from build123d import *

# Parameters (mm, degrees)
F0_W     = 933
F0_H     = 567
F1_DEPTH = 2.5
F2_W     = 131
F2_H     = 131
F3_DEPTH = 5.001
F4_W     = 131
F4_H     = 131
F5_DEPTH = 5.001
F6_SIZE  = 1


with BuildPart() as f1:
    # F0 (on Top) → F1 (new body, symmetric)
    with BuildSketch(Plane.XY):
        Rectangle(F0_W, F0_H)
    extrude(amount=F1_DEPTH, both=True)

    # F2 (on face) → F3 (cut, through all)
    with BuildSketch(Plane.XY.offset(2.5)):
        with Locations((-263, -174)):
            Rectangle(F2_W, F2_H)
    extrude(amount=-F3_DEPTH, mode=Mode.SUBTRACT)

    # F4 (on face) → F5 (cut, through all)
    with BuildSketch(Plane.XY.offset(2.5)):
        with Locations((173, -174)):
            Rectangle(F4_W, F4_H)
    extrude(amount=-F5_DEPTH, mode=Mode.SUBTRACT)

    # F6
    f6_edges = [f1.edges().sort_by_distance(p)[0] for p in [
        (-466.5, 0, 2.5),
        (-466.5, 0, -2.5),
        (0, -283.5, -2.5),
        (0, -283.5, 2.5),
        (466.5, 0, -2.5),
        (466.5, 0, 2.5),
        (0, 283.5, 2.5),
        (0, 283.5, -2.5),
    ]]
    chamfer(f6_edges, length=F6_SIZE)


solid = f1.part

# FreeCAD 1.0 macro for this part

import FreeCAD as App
import Part
import Sketcher
from FreeCAD import Vector
Q = App.Units.Quantity


def edges_at(feature, points):
    """Names of the edges that pass closest to the given points."""
    edges = feature.Shape.Edges
    near = lambda p: min(range(len(edges)), key=lambda i: edges[i].distToShape(Part.Vertex(*p))[0])
    return sorted({f"Edge{near(p) + 1}" for p in points})

doc = App.newDocument("Part")
body = doc.addObject("PartDesign::Body", "Body")

# Sketch on XY plane
sketch1 = doc.addObject("Sketcher::SketchObject", "Sketch")
body.addObject(sketch1)
sketch1.AttachmentSupport = (doc.XY_Plane, [""])
sketch1.MapMode = "FlatFace"
sketch1.addGeometry([
    Part.LineSegment(Vector(-466.5, 283.5, 0), Vector(-466.5, -283.5, 0)),
    Part.LineSegment(Vector(-466.5, -283.5, 0), Vector(466.5, -283.5, 0)),
    Part.LineSegment(Vector(466.5, -283.5, 0), Vector(466.5, 283.5, 0)),
    Part.LineSegment(Vector(466.5, 283.5, 0), Vector(-466.5, 283.5, 0)),
], False)
sketch1.addConstraint([
    Sketcher.Constraint("Coincident", 0, 2, 1, 1),
    Sketcher.Constraint("Coincident", 1, 2, 2, 1),
    Sketcher.Constraint("Coincident", 2, 2, 3, 1),
    Sketcher.Constraint("Coincident", 3, 2, 0, 1),
    Sketcher.Constraint("Vertical", 0),
    Sketcher.Constraint("Horizontal", 1),
    Sketcher.Constraint("Vertical", 2),
    Sketcher.Constraint("Horizontal", 3),
    Sketcher.Constraint("Symmetric", 0, 2, 2, 2, -1, 1),
    Sketcher.Constraint("DistanceX", 1, 1, 1, 2, Q("933 mm")),
    Sketcher.Constraint("DistanceY", 0, 2, 0, 1, Q("567 mm")),
])
pad1 = doc.addObject("PartDesign::Pad", "Pad")
body.addObject(pad1)
pad1.Profile = sketch1
pad1.Length = 5
pad1.Midplane = True

# Sketch on XY plane
sketch2 = doc.addObject("Sketcher::SketchObject", "Sketch001")
body.addObject(sketch2)
sketch2.AttachmentSupport = (doc.XY_Plane, [""])
sketch2.MapMode = "FlatFace"
sketch2.AttachmentOffset = App.Placement(Vector(0, 0, 2.5), App.Rotation())
sketch2.addGeometry([
    Part.LineSegment(Vector(-328.5, -108.5, 0), Vector(-328.5, -239.5, 0)),
    Part.LineSegment(Vector(-328.5, -239.5, 0), Vector(-197.5, -239.5, 0)),
    Part.LineSegment(Vector(-197.5, -239.5, 0), Vector(-197.5, -108.5, 0)),
    Part.LineSegment(Vector(-197.5, -108.5, 0), Vector(-328.5, -108.5, 0)),
], False)
sketch2.addConstraint([
    Sketcher.Constraint("Coincident", 0, 2, 1, 1),
    Sketcher.Constraint("Coincident", 1, 2, 2, 1),
    Sketcher.Constraint("Coincident", 2, 2, 3, 1),
    Sketcher.Constraint("Coincident", 3, 2, 0, 1),
    Sketcher.Constraint("Vertical", 0),
    Sketcher.Constraint("Horizontal", 1),
    Sketcher.Constraint("Vertical", 2),
    Sketcher.Constraint("Horizontal", 3),
    Sketcher.Constraint("Equal", 3, 0),
    Sketcher.Constraint("DistanceX", 1, 1, 1, 2, Q("131 mm")),
    Sketcher.Constraint("DistanceX", 0, 2, -1, 1, Q("328.5 mm")),
    Sketcher.Constraint("DistanceY", 0, 2, -1, 1, Q("239.5 mm")),
])
pocket1 = doc.addObject("PartDesign::Pocket", "Pocket")
body.addObject(pocket1)
pocket1.Profile = sketch2
pocket1.Type = "ThroughAll"

# Sketch on XY plane
sketch3 = doc.addObject("Sketcher::SketchObject", "Sketch002")
body.addObject(sketch3)
sketch3.AttachmentSupport = (doc.XY_Plane, [""])
sketch3.MapMode = "FlatFace"
sketch3.AttachmentOffset = App.Placement(Vector(0, 0, 2.5), App.Rotation())
sketch3.addGeometry([
    Part.LineSegment(Vector(107.5, -108.5, 0), Vector(107.5, -239.5, 0)),
    Part.LineSegment(Vector(107.5, -239.5, 0), Vector(238.5, -239.5, 0)),
    Part.LineSegment(Vector(238.5, -239.5, 0), Vector(238.5, -108.5, 0)),
    Part.LineSegment(Vector(238.5, -108.5, 0), Vector(107.5, -108.5, 0)),
], False)
sketch3.addConstraint([
    Sketcher.Constraint("Coincident", 0, 2, 1, 1),
    Sketcher.Constraint("Coincident", 1, 2, 2, 1),
    Sketcher.Constraint("Coincident", 2, 2, 3, 1),
    Sketcher.Constraint("Coincident", 3, 2, 0, 1),
    Sketcher.Constraint("Vertical", 0),
    Sketcher.Constraint("Horizontal", 1),
    Sketcher.Constraint("Vertical", 2),
    Sketcher.Constraint("Horizontal", 3),
    Sketcher.Constraint("Equal", 3, 0),
    Sketcher.Constraint("DistanceX", 1, 1, 1, 2, Q("131 mm")),
    Sketcher.Constraint("DistanceX", -1, 1, 0, 2, Q("107.5 mm")),
    Sketcher.Constraint("DistanceY", 0, 2, -1, 1, Q("239.5 mm")),
])
pocket2 = doc.addObject("PartDesign::Pocket", "Pocket001")
body.addObject(pocket2)
pocket2.Profile = sketch3
pocket2.Type = "ThroughAll"
doc.recompute()

chamfer = doc.addObject("PartDesign::Chamfer", "Chamfer")
body.addObject(chamfer)
chamfer.Base = (pocket2, edges_at(pocket2, [
    (-466.5, 0, 2.5),
    (-466.5, 0, -2.5),
    (0, -283.5, -2.5),
    (0, -283.5, 2.5),
    (466.5, 0, -2.5),
    (466.5, 0, 2.5),
    (0, 283.5, 2.5),
    (0, 283.5, -2.5),
]))
chamfer.Size = 1

doc.recompute()
